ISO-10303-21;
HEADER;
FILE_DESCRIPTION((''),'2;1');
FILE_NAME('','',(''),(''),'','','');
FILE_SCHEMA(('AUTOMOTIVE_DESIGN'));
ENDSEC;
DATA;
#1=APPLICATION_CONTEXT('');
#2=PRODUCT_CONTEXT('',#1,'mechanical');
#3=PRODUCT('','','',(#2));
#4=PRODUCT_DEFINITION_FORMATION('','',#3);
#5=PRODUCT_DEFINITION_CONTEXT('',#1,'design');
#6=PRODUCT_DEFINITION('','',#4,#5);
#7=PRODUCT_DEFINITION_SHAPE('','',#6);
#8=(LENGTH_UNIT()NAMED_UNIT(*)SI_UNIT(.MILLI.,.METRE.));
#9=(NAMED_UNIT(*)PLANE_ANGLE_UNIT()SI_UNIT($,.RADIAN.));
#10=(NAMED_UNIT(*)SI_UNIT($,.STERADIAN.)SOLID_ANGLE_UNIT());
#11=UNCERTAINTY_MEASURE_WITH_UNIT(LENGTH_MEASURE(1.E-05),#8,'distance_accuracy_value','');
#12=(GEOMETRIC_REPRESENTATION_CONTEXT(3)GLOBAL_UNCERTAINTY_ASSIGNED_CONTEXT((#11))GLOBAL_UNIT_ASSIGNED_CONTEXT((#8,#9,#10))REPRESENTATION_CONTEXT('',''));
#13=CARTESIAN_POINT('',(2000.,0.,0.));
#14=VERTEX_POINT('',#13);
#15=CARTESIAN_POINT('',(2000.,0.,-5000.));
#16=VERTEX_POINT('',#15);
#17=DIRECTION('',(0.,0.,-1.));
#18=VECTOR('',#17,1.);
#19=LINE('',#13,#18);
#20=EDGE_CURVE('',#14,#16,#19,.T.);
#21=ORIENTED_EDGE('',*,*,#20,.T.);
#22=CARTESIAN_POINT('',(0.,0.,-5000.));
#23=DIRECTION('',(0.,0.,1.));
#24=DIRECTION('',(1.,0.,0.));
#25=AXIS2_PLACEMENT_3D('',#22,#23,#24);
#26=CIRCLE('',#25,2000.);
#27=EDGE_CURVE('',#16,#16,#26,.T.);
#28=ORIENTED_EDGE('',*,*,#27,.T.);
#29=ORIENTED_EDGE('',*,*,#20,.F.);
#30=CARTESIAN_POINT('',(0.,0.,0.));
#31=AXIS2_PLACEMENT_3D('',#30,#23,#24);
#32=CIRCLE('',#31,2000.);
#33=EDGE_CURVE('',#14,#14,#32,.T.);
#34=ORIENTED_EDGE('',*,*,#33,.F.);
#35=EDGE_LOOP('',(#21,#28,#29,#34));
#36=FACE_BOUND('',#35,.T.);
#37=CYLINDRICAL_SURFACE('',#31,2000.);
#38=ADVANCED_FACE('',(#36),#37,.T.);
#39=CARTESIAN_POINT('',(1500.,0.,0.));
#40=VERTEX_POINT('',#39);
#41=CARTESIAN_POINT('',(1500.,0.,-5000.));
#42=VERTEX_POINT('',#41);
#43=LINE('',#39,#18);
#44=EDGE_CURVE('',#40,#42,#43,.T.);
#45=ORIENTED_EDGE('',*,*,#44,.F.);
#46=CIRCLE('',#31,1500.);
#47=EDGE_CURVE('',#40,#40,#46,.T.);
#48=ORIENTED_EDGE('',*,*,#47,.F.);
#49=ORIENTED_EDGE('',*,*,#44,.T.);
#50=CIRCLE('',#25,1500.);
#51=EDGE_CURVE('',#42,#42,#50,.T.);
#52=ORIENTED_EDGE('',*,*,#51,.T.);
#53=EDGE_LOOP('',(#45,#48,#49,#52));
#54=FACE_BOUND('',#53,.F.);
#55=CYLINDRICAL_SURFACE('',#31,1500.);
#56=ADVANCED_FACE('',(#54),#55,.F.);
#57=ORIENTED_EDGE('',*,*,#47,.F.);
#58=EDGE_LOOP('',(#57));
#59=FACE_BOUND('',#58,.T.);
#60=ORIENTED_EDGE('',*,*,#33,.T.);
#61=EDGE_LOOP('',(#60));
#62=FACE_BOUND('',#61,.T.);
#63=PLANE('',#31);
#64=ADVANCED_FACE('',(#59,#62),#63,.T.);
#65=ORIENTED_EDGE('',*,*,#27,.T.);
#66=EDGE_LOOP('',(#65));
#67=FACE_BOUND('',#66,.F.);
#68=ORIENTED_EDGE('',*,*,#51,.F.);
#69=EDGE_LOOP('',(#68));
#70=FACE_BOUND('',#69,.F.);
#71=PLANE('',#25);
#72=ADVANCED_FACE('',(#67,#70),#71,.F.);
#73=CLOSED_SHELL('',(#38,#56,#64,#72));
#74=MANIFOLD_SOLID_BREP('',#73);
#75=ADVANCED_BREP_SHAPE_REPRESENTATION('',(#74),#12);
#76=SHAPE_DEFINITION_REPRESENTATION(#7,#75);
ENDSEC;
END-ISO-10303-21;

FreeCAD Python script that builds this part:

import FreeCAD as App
import Part
import Sketcher

V = App.Vector

doc = App.newDocument("Part")
body = doc.addObject("PartDesign::Body", "Body")

sketch1 = body.newObject("Sketcher::SketchObject", "Sketch")
sketch1.AttachmentSupport = (doc.getObject("XY_Plane"), [""])
sketch1.MapMode = "FlatFace"
sketch1.addGeometry([
    Part.Circle(V(0, 0, 0), V(0, 0, 1), 2000),
    Part.Circle(V(0, 0, 0), V(0, 0, 1), 1500),
], False)
sketch1.addConstraint([
    Sketcher.Constraint("Coincident", 0, 3, -1, 1),
    Sketcher.Constraint("Coincident", 1, 3, -1, 1),
    Sketcher.Constraint("Diameter", 0, 4000.0),
    Sketcher.Constraint("Diameter", 1, 3000.0),
])
pad1 = body.newObject("PartDesign::Pad", "Pad")
pad1.Profile = sketch1
pad1.Length = 5000
pad1.Reversed = True

doc.recompute()
